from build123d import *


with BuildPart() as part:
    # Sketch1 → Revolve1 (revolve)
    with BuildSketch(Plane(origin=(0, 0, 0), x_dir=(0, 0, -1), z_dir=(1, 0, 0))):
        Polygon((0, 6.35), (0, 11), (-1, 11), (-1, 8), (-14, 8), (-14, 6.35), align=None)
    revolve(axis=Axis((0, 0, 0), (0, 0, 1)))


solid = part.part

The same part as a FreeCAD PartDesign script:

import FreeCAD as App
import Part
import Sketcher
from FreeCAD import Vector
Q = App.Units.Quantity


def add_polygon(sketch, points):
    """Adds a closed chain of lines whose ends are joined by coincident constraints."""
    first, n = sketch.GeometryCount, len(points)
    for a, b in zip(points, points[1:] + points[:1]):
        sketch.addGeometry(Part.LineSegment(App.Vector(*a, 0), App.Vector(*b, 0)), False)
    for i in range(n):
        sketch.addConstraint(Sketcher.Constraint("Coincident", first + i, 2, first + (i + 1) % n, 1))

doc = App.newDocument("Part")
params = doc.addObject("Spreadsheet::Sheet", "Params")
for row, (alias, value) in enumerate([
    ("sketch1_width", "3 mm"),
    ("sketch1_height", "1 mm"),
    ("sketch1_height2", "13 mm"),
    ("sketch1_width2", "4.65 mm"),
    ("revolution_angle", "360 deg"),
], start=1):
    params.set(f"A{row}", alias)
    params.set(f"B{row}", "=" + value)
    params.setAlias(f"B{row}", alias)

body = doc.addObject("PartDesign::Body", "Body")

# Sketch on YZ plane
sketch1 = body.newObject("Sketcher::SketchObject", "Sketch")
sketch1.AttachmentSupport = (doc.getObject("YZ_Plane"), [""])
sketch1.MapMode = "FlatFace"
add_polygon(sketch1, [(6.3, 0), (11, 0), (11, 1), (8, 1), (8, 14), (6.3, 14)])  # lines 0-5
sketch1.addConstraint(Sketcher.Constraint("Horizontal", 0))
sketch1.addConstraint(Sketcher.Constraint("Vertical", 1))
sketch1.addConstraint(Sketcher.Constraint("Horizontal", 2))
sketch1.addConstraint(Sketcher.Constraint("Vertical", 3))
sketch1.addConstraint(Sketcher.Constraint("Horizontal", 4))
sketch1.addConstraint(Sketcher.Constraint("Vertical", 5))
sketch1.addConstraint(Sketcher.Constraint("PointOnObject", 0, 2, -1))
sketch1.addConstraint(Sketcher.Constraint("DistanceX", 2, 2, 2, 1, Q("3 mm")))
sketch1.addConstraint(Sketcher.Constraint("DistanceY", 1, 1, 1, 2, Q("1 mm")))
sketch1.addConstraint(Sketcher.Constraint("DistanceY", 3, 1, 3, 2, Q("13 mm")))
sketch1.addConstraint(Sketcher.Constraint("DistanceX", -1, 1, 0, 2, Q("11 mm")))
sketch1.addConstraint(Sketcher.Constraint("DistanceX", 0, 1, 0, 2, Q("4.65 mm")))
sketch1.setExpression("Constraints[13]", "Params.sketch1_width")
sketch1.setExpression("Constraints[14]", "Params.sketch1_height")
sketch1.setExpression("Constraints[15]", "Params.sketch1_height2")
sketch1.setExpression("Constraints[17]", "Params.sketch1_width2")
revolution = body.newObject("PartDesign::Revolution", "Revolution")
revolution.Profile = sketch1
revolution.ReferenceAxis = (sketch1, ["V_Axis"])
revolution.setExpression("Angle", "Params.revolution_angle")

doc.recompute()
